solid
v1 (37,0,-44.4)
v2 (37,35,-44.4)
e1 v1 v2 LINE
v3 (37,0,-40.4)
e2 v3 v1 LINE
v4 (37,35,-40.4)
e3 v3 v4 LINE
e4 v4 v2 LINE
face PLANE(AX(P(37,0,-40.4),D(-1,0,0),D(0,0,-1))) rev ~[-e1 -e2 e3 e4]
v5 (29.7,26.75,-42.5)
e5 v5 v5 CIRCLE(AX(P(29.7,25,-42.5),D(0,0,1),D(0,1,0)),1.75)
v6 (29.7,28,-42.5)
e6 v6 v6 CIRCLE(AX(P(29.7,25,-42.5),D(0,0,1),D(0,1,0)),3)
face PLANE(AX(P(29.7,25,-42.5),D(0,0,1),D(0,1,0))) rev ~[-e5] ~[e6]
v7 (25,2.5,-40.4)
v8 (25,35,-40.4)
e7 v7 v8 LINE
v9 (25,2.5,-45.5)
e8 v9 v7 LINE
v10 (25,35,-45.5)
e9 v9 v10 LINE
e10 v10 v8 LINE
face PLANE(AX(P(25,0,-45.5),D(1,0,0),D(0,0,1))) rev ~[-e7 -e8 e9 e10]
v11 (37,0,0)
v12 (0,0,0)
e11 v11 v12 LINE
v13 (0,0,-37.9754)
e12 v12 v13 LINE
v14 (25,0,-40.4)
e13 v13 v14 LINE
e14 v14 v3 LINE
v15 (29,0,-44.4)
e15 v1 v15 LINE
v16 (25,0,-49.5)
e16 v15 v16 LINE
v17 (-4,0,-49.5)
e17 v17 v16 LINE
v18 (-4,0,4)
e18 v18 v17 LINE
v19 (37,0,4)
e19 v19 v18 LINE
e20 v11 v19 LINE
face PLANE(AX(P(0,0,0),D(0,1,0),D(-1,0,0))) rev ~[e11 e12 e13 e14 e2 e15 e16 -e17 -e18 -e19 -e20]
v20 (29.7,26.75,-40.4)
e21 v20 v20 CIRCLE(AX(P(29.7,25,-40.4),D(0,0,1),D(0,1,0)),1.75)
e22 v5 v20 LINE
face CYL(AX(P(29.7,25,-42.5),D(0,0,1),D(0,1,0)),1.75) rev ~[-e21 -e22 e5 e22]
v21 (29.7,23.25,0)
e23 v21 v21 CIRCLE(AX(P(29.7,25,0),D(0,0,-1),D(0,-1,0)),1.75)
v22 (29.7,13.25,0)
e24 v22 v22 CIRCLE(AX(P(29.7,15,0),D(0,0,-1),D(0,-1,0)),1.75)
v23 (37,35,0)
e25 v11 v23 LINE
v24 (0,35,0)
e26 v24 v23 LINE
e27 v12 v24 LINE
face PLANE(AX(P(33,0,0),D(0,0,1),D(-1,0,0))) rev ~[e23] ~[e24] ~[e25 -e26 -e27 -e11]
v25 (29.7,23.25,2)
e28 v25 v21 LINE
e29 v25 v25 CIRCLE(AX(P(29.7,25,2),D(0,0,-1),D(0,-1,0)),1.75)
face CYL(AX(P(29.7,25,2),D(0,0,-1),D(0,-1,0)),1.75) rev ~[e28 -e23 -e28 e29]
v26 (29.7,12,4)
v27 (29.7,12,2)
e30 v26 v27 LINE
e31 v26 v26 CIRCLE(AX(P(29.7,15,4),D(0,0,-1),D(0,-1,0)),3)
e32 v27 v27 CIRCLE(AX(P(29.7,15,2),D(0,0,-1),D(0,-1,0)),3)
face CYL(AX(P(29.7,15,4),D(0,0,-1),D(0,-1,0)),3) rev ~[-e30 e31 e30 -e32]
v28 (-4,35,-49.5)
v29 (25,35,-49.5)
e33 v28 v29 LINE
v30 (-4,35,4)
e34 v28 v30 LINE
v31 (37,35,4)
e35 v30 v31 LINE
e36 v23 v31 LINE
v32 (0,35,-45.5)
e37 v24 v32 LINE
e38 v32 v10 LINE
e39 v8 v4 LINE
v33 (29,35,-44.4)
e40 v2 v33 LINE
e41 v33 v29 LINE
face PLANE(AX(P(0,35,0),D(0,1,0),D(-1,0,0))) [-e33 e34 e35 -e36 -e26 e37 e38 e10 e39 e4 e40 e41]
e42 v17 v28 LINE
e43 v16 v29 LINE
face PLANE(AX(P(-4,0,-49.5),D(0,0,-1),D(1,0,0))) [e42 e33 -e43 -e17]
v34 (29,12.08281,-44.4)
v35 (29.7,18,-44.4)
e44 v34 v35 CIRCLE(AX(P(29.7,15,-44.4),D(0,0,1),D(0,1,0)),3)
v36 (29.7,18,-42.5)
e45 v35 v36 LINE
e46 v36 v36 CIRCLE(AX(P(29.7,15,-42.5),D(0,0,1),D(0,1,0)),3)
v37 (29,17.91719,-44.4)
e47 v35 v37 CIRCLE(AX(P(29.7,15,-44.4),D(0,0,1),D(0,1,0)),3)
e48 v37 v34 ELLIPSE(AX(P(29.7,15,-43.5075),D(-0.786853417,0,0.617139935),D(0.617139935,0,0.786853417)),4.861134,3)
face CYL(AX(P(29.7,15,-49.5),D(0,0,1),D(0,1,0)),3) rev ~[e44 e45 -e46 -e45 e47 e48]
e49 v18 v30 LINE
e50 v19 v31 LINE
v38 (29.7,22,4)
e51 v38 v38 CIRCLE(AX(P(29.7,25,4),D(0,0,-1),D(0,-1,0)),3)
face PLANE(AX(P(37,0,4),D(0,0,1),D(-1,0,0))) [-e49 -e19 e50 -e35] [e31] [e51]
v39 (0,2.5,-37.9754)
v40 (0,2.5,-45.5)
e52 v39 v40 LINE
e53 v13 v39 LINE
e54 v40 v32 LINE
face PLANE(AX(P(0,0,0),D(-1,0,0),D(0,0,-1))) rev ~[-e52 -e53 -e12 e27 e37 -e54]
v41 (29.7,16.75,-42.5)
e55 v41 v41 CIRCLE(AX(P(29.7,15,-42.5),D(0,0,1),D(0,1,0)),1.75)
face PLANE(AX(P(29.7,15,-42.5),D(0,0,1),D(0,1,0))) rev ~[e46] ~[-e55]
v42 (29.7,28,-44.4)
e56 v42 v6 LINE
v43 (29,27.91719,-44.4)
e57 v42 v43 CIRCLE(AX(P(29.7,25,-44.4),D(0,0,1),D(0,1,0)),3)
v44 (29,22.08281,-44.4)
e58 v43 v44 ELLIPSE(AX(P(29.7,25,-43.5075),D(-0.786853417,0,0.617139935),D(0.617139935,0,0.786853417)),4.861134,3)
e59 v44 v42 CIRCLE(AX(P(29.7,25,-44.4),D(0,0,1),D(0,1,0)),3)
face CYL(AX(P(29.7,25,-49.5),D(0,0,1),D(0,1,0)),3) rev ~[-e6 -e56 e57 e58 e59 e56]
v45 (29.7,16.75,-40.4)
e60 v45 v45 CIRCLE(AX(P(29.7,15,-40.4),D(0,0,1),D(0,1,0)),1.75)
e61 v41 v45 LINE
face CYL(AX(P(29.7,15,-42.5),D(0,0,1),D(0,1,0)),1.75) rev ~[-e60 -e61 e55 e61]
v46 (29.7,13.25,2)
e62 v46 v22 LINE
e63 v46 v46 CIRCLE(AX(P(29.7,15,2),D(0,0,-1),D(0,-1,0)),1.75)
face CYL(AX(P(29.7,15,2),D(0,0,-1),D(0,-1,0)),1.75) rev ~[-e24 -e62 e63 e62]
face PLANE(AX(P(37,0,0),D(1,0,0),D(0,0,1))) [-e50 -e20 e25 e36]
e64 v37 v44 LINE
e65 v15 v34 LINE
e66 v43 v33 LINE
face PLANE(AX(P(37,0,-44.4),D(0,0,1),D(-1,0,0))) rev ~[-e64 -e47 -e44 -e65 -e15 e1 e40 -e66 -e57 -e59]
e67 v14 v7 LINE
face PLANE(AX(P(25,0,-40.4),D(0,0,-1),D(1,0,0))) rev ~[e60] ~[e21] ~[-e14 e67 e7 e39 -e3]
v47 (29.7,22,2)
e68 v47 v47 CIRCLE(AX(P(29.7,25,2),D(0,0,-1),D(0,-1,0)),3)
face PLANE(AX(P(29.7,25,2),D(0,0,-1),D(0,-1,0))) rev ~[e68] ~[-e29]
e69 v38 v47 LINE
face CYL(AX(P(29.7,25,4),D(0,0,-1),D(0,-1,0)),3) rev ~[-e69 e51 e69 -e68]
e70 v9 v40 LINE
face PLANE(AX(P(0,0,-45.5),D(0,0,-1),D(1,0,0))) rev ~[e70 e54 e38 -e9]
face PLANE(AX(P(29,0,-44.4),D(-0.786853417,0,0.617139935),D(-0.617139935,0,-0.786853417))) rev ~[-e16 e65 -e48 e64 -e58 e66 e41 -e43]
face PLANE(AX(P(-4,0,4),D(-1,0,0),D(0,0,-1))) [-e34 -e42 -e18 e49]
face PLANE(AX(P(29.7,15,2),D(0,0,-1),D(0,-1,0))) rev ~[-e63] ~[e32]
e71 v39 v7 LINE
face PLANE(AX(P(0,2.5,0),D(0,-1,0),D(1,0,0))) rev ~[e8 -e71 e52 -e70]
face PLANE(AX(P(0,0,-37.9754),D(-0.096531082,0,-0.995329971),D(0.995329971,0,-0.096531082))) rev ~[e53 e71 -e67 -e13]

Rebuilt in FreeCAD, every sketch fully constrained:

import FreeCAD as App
import Part
import Sketcher

V = App.Vector
Q = App.Units.Quantity

doc = App.newDocument("Part")
body = doc.addObject("PartDesign::Body", "Body")

sketch1 = body.newObject("Sketcher::SketchObject", "Sketch")
sketch1.AttachmentSupport = (doc.getObject("XZ_Plane"), [""])
sketch1.MapMode = "FlatFace"
sketch1.addGeometry(Part.LineSegment(V(37, 0, 0), V(0, 0, 0)), False)
sketch1.addGeometry(Part.LineSegment(V(0, 0, 0), V(0, -45.5, 0)), False)
sketch1.addGeometry(Part.LineSegment(V(0, -45.5, 0), V(25, -45.5, 0)), False)
sketch1.addGeometry(Part.LineSegment(V(25, -45.5, 0), V(25, -40.4, 0)), False)
sketch1.addGeometry(Part.LineSegment(V(25, -40.4, 0), V(37, -40.4, 0)), False)
sketch1.addGeometry(Part.LineSegment(V(37, -40.4, 0), V(37, -44.4, 0)), False)
sketch1.addGeometry(Part.LineSegment(V(37, -44.4, 0), V(29, -44.4, 0)), False)
sketch1.addGeometry(Part.LineSegment(V(29, -44.4, 0), V(25, -49.5, 0)), False)
sketch1.addGeometry(Part.LineSegment(V(25, -49.5, 0), V(-4, -49.5, 0)), False)
sketch1.addGeometry(Part.LineSegment(V(-4, -49.5, 0), V(-4, 4, 0)), False)
sketch1.addGeometry(Part.LineSegment(V(-4, 4, 0), V(37, 4, 0)), False)
sketch1.addGeometry(Part.LineSegment(V(37, 4, 0), V(37, 0, 0)), False)
sketch1.addConstraint(Sketcher.Constraint("Coincident", 0, 2, 1, 1))
sketch1.addConstraint(Sketcher.Constraint("Coincident", 1, 2, 2, 1))
sketch1.addConstraint(Sketcher.Constraint("Coincident", 2, 2, 3, 1))
sketch1.addConstraint(Sketcher.Constraint("Coincident", 3, 2, 4, 1))
sketch1.addConstraint(Sketcher.Constraint("Coincident", 4, 2, 5, 1))
sketch1.addConstraint(Sketcher.Constraint("Coincident", 5, 2, 6, 1))
sketch1.addConstraint(Sketcher.Constraint("Coincident", 6, 2, 7, 1))
sketch1.addConstraint(Sketcher.Constraint("Coincident", 7, 2, 8, 1))
sketch1.addConstraint(Sketcher.Constraint("Coincident", 8, 2, 9, 1))
sketch1.addConstraint(Sketcher.Constraint("Coincident", 9, 2, 10, 1))
sketch1.addConstraint(Sketcher.Constraint("Coincident", 10, 2, 11, 1))
sketch1.addConstraint(Sketcher.Constraint("Coincident", 11, 2, 0, 1))
sketch1.addConstraint(Sketcher.Constraint("Horizontal", 0))
sketch1.addConstraint(Sketcher.Constraint("Vertical", 1))
sketch1.addConstraint(Sketcher.Constraint("Horizontal", 2))
sketch1.addConstraint(Sketcher.Constraint("Vertical", 3))
sketch1.addConstraint(Sketcher.Constraint("Horizontal", 4))
sketch1.addConstraint(Sketcher.Constraint("Vertical", 5))
sketch1.addConstraint(Sketcher.Constraint("Horizontal", 6))
sketch1.addConstraint(Sketcher.Constraint("Horizontal", 8))
sketch1.addConstraint(Sketcher.Constraint("Vertical", 9))
sketch1.addConstraint(Sketcher.Constraint("Horizontal", 10))
sketch1.addConstraint(Sketcher.Constraint("Vertical", 11))
sketch1.addConstraint(Sketcher.Constraint("Coincident", 0, 2, -1, 1))
sketch1.addConstraint(Sketcher.Constraint("Vertical", 3, 2, 7, 2))
sketch1.addConstraint(Sketcher.Constraint("Vertical", 5, 2, 10, 2))
sketch1.addConstraint(Sketcher.Constraint("Equal", 5, 11))
sketch1.addConstraint(Sketcher.Constraint("DistanceX", 2, 1, 2, 2, 25.0))
sketch1.addConstraint(Sketcher.Constraint("DistanceX", 4, 1, 4, 2, 12.0))
sketch1.addConstraint(Sketcher.Constraint("DistanceX", 6, 2, 6, 1, 8.0))
sketch1.addConstraint(Sketcher.Constraint("DistanceY", 5, 2, 5, 1, 4.0))
sketch1.addConstraint(Sketcher.Constraint("DistanceY", 1, 2, 1, 1, 45.5))
sketch1.addConstraint(Sketcher.Constraint("DistanceY", 3, 1, 3, 2, 5.1))
sketch1.addConstraint(Sketcher.Constraint("DistanceX", 8, 2, -1, 1, 4.0))
sketch1.addConstraint(Sketcher.Constraint("DistanceY", 7, 2, 2, 2, 4.0))
pad1 = body.newObject("PartDesign::Pad", "Pad")
pad1.Profile = sketch1
pad1.Length = 35
pad1.Reversed = True

sketch2 = body.newObject("Sketcher::SketchObject", "Sketch001")
sketch2.AttachmentSupport = (doc.getObject("XZ_Plane"), [""])
sketch2.MapMode = "FlatFace"
sketch2.addGeometry(Part.LineSegment(V(25, -40, 0), V(0, -38, 0)), False)
sketch2.addGeometry(Part.LineSegment(V(0, -38, 0), V(0, -46, 0)), False)
sketch2.addGeometry(Part.LineSegment(V(0, -46, 0), V(25, -46, 0)), False)
sketch2.addGeometry(Part.LineSegment(V(25, -46, 0), V(25, -40, 0)), False)
sketch2.addConstraint(Sketcher.Constraint("Coincident", 0, 2, 1, 1))
sketch2.addConstraint(Sketcher.Constraint("Coincident", 1, 2, 2, 1))
sketch2.addConstraint(Sketcher.Constraint("Coincident", 2, 2, 3, 1))
sketch2.addConstraint(Sketcher.Constraint("Coincident", 3, 2, 0, 1))
sketch2.addConstraint(Sketcher.Constraint("Vertical", 1))
sketch2.addConstraint(Sketcher.Constraint("Horizontal", 2))
sketch2.addConstraint(Sketcher.Constraint("Vertical", 3))
sketch2.addConstraint(Sketcher.Constraint("PointOnObject", 0, 2, -2))
sketch2.addConstraint(Sketcher.Constraint("DistanceX", 2, 1, 2, 2, 25.0))
sketch2.addConstraint(Sketcher.Constraint("DistanceY", 3, 1, 3, 2, 5.1))
sketch2.addConstraint(Sketcher.Constraint("DistanceY", 1, 2, -1, 1, 45.5))
sketch2.addConstraint(Sketcher.Constraint("Angle", 0, Q("174.4606 deg")))
pad2 = body.newObject("PartDesign::Pad", "Pad001")
pad2.Profile = sketch2
pad2.Length = 2.5
pad2.Reversed = True

sketch3 = body.newObject("Sketcher::SketchObject", "Sketch002")
sketch3.AttachmentSupport = (doc.getObject("XY_Plane"), [""])
sketch3.MapMode = "FlatFace"
sketch3.AttachmentOffset = App.Placement(V(0, 0, -49.5), App.Rotation())
sketch3.addGeometry(Part.Circle(V(29.7, 15, 0), V(0, 0, 1), 1.8), False)
sketch3.addGeometry(Part.Circle(V(29.7, 25, 0), V(0, 0, 1), 1.8), False)
sketch3.addConstraint(Sketcher.Constraint("Equal", 0, 1))
sketch3.addConstraint(Sketcher.Constraint("Vertical", 0, 3, 1, 3))
sketch3.addConstraint(Sketcher.Constraint("Diameter", 0, 3.5))
sketch3.addConstraint(Sketcher.Constraint("DistanceY", -1, 1, 0, 3, 15.0))
sketch3.addConstraint(Sketcher.Constraint("DistanceY", -1, 1, 1, 3, 25.0))
sketch3.addConstraint(Sketcher.Constraint("DistanceX", -1, 1, 0, 3, 29.7))
doc.recompute()
hole = body.newObject("PartDesign::Hole", "Hole")
hole.Profile = sketch3
hole.ThreadType = "None"
hole.Diameter = 3.5
hole.DepthType = "Dimension"
hole.Depth = 9.1
hole.DrillPoint = "Flat"
hole.HoleCutType = "Counterbore"
hole.HoleCutDiameter = 6
hole.HoleCutDepth = 7
hole.Reversed = True

sketch4 = body.newObject("Sketcher::SketchObject", "Sketch003")
sketch4.AttachmentSupport = (doc.getObject("XY_Plane"), [""])
sketch4.MapMode = "FlatFace"
sketch4.AttachmentOffset = App.Placement(V(0, 0, 4), App.Rotation())
sketch4.addGeometry(Part.Circle(V(29.7, 25, 0), V(0, 0, 1), 1.8), False)
sketch4.addGeometry(Part.Circle(V(29.7, 15, 0), V(0, 0, 1), 1.8), False)
sketch4.addConstraint(Sketcher.Constraint("Equal", 0, 1))
sketch4.addConstraint(Sketcher.Constraint("Vertical", 0, 3, 1, 3))
sketch4.addConstraint(Sketcher.Constraint("Diameter", 0, 3.5))
sketch4.addConstraint(Sketcher.Constraint("DistanceY", -1, 1, 0, 3, 25.0))
sketch4.addConstraint(Sketcher.Constraint("DistanceY", -1, 1, 1, 3, 15.0))
sketch4.addConstraint(Sketcher.Constraint("DistanceX", -1, 1, 0, 3, 29.7))
doc.recompute()
hole2 = body.newObject("PartDesign::Hole", "Hole001")
hole2.Profile = sketch4
hole2.ThreadType = "None"
hole2.Diameter = 3.5
hole2.DepthType = "Dimension"
hole2.Depth = 4
hole2.DrillPoint = "Flat"
hole2.HoleCutType = "Counterbore"
hole2.HoleCutDiameter = 6
hole2.HoleCutDepth = 2

doc.recompute()
